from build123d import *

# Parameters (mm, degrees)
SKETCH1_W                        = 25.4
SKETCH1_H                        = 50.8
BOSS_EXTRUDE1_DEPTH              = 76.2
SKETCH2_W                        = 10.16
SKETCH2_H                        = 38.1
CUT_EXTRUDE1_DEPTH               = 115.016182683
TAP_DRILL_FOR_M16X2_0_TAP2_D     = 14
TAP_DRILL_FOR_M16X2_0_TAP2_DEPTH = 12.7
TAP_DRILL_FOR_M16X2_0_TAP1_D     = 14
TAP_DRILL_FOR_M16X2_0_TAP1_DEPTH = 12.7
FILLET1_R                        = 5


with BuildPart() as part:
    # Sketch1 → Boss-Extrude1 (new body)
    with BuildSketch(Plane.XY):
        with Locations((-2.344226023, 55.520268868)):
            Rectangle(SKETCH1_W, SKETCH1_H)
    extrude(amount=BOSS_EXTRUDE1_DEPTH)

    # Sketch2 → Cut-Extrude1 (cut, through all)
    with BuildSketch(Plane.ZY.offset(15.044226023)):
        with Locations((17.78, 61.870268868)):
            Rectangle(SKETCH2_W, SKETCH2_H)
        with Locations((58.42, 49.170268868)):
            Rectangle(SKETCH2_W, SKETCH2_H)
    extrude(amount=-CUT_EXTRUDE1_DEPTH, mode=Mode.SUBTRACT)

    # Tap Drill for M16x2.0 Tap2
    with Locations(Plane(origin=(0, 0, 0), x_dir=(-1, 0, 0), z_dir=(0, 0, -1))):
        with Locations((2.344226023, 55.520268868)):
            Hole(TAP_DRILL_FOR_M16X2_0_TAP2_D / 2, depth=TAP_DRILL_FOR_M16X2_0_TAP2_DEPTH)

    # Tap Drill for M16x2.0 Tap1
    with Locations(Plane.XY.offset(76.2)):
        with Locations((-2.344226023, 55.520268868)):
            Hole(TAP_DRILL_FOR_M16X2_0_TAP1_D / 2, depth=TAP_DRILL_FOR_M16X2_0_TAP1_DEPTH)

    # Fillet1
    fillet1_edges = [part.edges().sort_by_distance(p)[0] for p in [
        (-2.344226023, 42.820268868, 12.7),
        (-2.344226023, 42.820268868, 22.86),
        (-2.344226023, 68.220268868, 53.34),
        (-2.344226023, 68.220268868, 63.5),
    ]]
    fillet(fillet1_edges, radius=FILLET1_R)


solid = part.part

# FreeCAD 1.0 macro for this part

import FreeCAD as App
import Part
import Sketcher

V = App.Vector
Q = App.Units.Quantity


def edges_at(feature, points):
    """Names of the edges that pass closest to the given points."""
    edges = feature.Shape.Edges
    near = lambda p: min(range(len(edges)), key=lambda i: edges[i].distToShape(Part.Vertex(*p))[0])
    return sorted({f"Edge{near(p) + 1}" for p in points})

doc = App.newDocument("Part")
body = doc.addObject("PartDesign::Body", "Body")

# Sketch on XY plane
sketch1 = doc.addObject("Sketcher::SketchObject", "Sketch")
body.addObject(sketch1)
sketch1.AttachmentSupport = (doc.XY_Plane, [""])
sketch1.MapMode = "FlatFace"
sketch1.addGeometry(Part.LineSegment(V(-15.044226, 80.920269, 0), V(-15.044226, 30.120269, 0)), False)
sketch1.addGeometry(Part.LineSegment(V(-15.044226, 30.120269, 0), V(10.355774, 30.120269, 0)), False)
sketch1.addGeometry(Part.LineSegment(V(10.355774, 30.120269, 0), V(10.355774, 80.920269, 0)), False)
sketch1.addGeometry(Part.LineSegment(V(10.355774, 80.920269, 0), V(-15.044226, 80.920269, 0)), False)
sketch1.addConstraint(Sketcher.Constraint("Coincident", 0, 2, 1, 1))
sketch1.addConstraint(Sketcher.Constraint("Coincident", 1, 2, 2, 1))
sketch1.addConstraint(Sketcher.Constraint("Coincident", 2, 2, 3, 1))
sketch1.addConstraint(Sketcher.Constraint("Coincident", 3, 2, 0, 1))
sketch1.addConstraint(Sketcher.Constraint("Vertical", 0))
sketch1.addConstraint(Sketcher.Constraint("Horizontal", 1))
sketch1.addConstraint(Sketcher.Constraint("Vertical", 2))
sketch1.addConstraint(Sketcher.Constraint("Horizontal", 3))
sketch1.addConstraint(Sketcher.Constraint("DistanceX", 1, 1, 1, 2, Q("1 in")))
sketch1.addConstraint(Sketcher.Constraint("DistanceY", 0, 2, 0, 1, Q("2 in")))
sketch1.addConstraint(Sketcher.Constraint("DistanceY", -1, 1, 0, 2, Q("30.120269 mm")))
sketch1.addConstraint(Sketcher.Constraint("DistanceX", 0, 2, -1, 1, Q("15.044226 mm")))
pad1 = doc.addObject("PartDesign::Pad", "Pad")
body.addObject(pad1)
pad1.Profile = sketch1
pad1.Length = Q("3 in")

# Sketch on YZ plane
sketch2 = doc.addObject("Sketcher::SketchObject", "Sketch001")
body.addObject(sketch2)
sketch2.AttachmentSupport = (doc.YZ_Plane, [""])
sketch2.MapMode = "FlatFace"
sketch2.AttachmentOffset = App.Placement(V(0, 0, -15.044226), App.Rotation())
sketch2.addGeometry(Part.LineSegment(V(80.920269, 12.7, 0), V(42.820269, 12.7, 0)), False)
sketch2.addGeometry(Part.LineSegment(V(42.820269, 12.7, 0), V(42.820269, 22.86, 0)), False)
sketch2.addGeometry(Part.LineSegment(V(42.820269, 22.86, 0), V(80.920269, 22.86, 0)), False)
sketch2.addGeometry(Part.LineSegment(V(80.920269, 22.86, 0), V(80.920269, 12.7, 0)), False)
sketch2.addGeometry(Part.LineSegment(V(68.220269, 53.34, 0), V(30.120269, 53.34, 0)), False)
sketch2.addGeometry(Part.LineSegment(V(30.120269, 53.34, 0), V(30.120269, 63.5, 0)), False)
sketch2.addGeometry(Part.LineSegment(V(30.120269, 63.5, 0), V(68.220269, 63.5, 0)), False)
sketch2.addGeometry(Part.LineSegment(V(68.220269, 63.5, 0), V(68.220269, 53.34, 0)), False)
sketch2.addConstraint(Sketcher.Constraint("Coincident", 0, 2, 1, 1))
sketch2.addConstraint(Sketcher.Constraint("Coincident", 1, 2, 2, 1))
sketch2.addConstraint(Sketcher.Constraint("Coincident", 2, 2, 3, 1))
sketch2.addConstraint(Sketcher.Constraint("Coincident", 3, 2, 0, 1))
sketch2.addConstraint(Sketcher.Constraint("Coincident", 4, 2, 5, 1))
sketch2.addConstraint(Sketcher.Constraint("Coincident", 5, 2, 6, 1))
sketch2.addConstraint(Sketcher.Constraint("Coincident", 6, 2, 7, 1))
sketch2.addConstraint(Sketcher.Constraint("Coincident", 7, 2, 4, 1))
sketch2.addConstraint(Sketcher.Constraint("Horizontal", 0))
sketch2.addConstraint(Sketcher.Constraint("Vertical", 1))
sketch2.addConstraint(Sketcher.Constraint("Horizontal", 2))
sketch2.addConstraint(Sketcher.Constraint("Vertical", 3))
sketch2.addConstraint(Sketcher.Constraint("Horizontal", 4))
sketch2.addConstraint(Sketcher.Constraint("Vertical", 5))
sketch2.addConstraint(Sketcher.Constraint("Horizontal", 6))
sketch2.addConstraint(Sketcher.Constraint("Vertical", 7))
sketch2.addConstraint(Sketcher.Constraint("Equal", 2, 4))
sketch2.addConstraint(Sketcher.Constraint("Equal", 3, 5))
sketch2.addConstraint(Sketcher.Constraint("DistanceX", 0, 2, 0, 1, Q("1.5 in")))
sketch2.addConstraint(Sketcher.Constraint("DistanceY", 1, 1, 1, 2, Q("0.4 in")))
sketch2.addConstraint(Sketcher.Constraint("DistanceX", 4, 2, 2, 2, Q("2 in")))
sketch2.addConstraint(Sketcher.Constraint("DistanceY", 0, 2, 5, 2, Q("2 in")))
sketch2.addConstraint(Sketcher.Constraint("DistanceY", -1, 1, 0, 2, Q("0.5 in")))
sketch2.addConstraint(Sketcher.Constraint("DistanceX", -1, 1, 0, 2, Q("42.820269 mm")))
pocket1 = doc.addObject("PartDesign::Pocket", "Pocket")
body.addObject(pocket1)
pocket1.Profile = sketch2
pocket1.Type = "ThroughAll"
pocket1.Reversed = True

# Sketch on XY plane
sketch3 = doc.addObject("Sketcher::SketchObject", "Sketch002")
body.addObject(sketch3)
sketch3.AttachmentSupport = (doc.XY_Plane, [""])
sketch3.MapMode = "FlatFace"
sketch3.addGeometry(Part.Circle(V(-2.344226, 55.520269, 0), V(0, 0, 1), 7), False)
sketch3.addConstraint(Sketcher.Constraint("Diameter", 0, Q("14 mm")))
sketch3.addConstraint(Sketcher.Constraint("DistanceY", -1, 1, 0, 3, Q("55.520269 mm")))
sketch3.addConstraint(Sketcher.Constraint("DistanceX", 0, 3, -1, 1, Q("2.344226 mm")))
doc.recompute()
hole = doc.addObject("PartDesign::Hole", "Hole")
body.addObject(hole)
hole.Profile = sketch3
hole.ThreadType = "None"
hole.Diameter = 14
hole.DepthType = "Dimension"
hole.Depth = Q("0.5 in")
hole.DrillPoint = "Flat"
hole.Reversed = True

# Sketch on XY plane
sketch4 = doc.addObject("Sketcher::SketchObject", "Sketch003")
body.addObject(sketch4)
sketch4.AttachmentSupport = (doc.XY_Plane, [""])
sketch4.MapMode = "FlatFace"
sketch4.AttachmentOffset = App.Placement(V(0, 0, 3 * 25.4), App.Rotation())
sketch4.addGeometry(Part.Circle(V(-2.344226, 55.520269, 0), V(0, 0, 1), 7), False)
sketch4.addConstraint(Sketcher.Constraint("Diameter", 0, Q("14 mm")))
sketch4.addConstraint(Sketcher.Constraint("DistanceY", -1, 1, 0, 3, Q("55.520269 mm")))
sketch4.addConstraint(Sketcher.Constraint("DistanceX", 0, 3, -1, 1, Q("2.344226 mm")))
doc.recompute()
hole2 = doc.addObject("PartDesign::Hole", "Hole001")
body.addObject(hole2)
hole2.Profile = sketch4
hole2.ThreadType = "None"
hole2.Diameter = 14
hole2.DepthType = "Dimension"
hole2.Depth = Q("0.5 in")
hole2.DrillPoint = "Flat"
doc.recompute()

fillet = doc.addObject("PartDesign::Fillet", "Fillet")
body.addObject(fillet)
fillet.Base = (hole2, edges_at(hole2, [
    (-2.344, 42.82, 12.7),
    (-2.344, 42.82, 22.86),
    (-2.344, 68.22, 53.34),
    (-2.344, 68.22, 63.5),
]))
fillet.Radius = 5

doc.recompute()
